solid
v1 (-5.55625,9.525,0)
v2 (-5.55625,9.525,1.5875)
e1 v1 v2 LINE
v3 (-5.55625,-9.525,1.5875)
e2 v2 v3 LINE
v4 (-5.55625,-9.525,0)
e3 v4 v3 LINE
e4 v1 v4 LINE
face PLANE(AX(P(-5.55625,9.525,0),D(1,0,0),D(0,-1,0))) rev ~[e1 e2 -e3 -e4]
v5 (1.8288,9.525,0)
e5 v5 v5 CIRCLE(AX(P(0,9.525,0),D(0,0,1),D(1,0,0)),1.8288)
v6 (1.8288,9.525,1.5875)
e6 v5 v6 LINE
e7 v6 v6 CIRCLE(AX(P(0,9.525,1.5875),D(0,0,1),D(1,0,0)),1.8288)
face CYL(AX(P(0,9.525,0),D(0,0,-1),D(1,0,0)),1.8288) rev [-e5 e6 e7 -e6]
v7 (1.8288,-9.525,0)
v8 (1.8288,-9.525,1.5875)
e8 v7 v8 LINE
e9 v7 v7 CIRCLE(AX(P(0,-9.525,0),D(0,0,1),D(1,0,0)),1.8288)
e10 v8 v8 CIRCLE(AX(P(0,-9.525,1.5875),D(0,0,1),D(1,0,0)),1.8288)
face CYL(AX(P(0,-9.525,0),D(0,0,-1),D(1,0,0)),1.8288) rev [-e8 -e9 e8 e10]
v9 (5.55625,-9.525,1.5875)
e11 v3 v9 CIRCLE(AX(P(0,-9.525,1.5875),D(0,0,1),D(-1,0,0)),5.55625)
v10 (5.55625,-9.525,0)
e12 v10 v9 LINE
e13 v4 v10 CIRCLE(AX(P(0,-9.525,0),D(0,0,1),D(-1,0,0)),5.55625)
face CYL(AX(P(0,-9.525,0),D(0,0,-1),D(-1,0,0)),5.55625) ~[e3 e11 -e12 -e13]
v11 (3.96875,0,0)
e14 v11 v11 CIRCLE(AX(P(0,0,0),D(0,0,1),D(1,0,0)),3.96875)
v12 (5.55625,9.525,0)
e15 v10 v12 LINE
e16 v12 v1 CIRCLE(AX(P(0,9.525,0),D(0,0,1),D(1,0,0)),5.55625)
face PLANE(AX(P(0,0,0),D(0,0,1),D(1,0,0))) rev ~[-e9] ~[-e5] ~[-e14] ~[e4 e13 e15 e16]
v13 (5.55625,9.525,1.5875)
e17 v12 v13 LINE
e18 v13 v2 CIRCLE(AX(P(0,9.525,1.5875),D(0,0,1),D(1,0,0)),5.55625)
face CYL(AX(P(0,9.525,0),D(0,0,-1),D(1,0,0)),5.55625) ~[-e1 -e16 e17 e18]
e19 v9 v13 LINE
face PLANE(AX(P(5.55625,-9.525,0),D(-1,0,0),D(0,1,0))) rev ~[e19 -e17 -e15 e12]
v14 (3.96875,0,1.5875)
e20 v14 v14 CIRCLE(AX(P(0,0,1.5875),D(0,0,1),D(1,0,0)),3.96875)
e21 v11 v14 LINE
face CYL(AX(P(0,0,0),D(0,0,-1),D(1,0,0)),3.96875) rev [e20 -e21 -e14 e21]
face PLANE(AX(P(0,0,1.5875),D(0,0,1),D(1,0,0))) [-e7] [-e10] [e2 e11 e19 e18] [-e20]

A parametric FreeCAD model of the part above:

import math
import FreeCAD as App
import Part
import Sketcher
from FreeCAD import Vector
Q = App.Units.Quantity

doc = App.newDocument("Part")
body = doc.addObject("PartDesign::Body", "Body")

# Sketch on XY plane
sketch1 = body.newObject("Sketcher::SketchObject", "Sketch")
sketch1.AttachmentSupport = (doc.getObject("XY_Plane"), [""])
sketch1.MapMode = "FlatFace"
sketch1.addGeometry(Part.LineSegment(Vector(5.55625, -9.525, 0), Vector(5.55625, 9.525, 0)), False)
sketch1.addGeometry(Part.ArcOfCircle(Part.Circle(Vector(0, 9.525, 0), Vector(0, 0, 1), 5.55625), math.radians(0), math.radians(180)), False)
sketch1.addGeometry(Part.LineSegment(Vector(-5.55625, 9.525, 0), Vector(-5.55625, -9.525, 0)), False)
sketch1.addGeometry(Part.ArcOfCircle(Part.Circle(Vector(0, -9.525, 0), Vector(0, 0, 1), 5.55625), math.radians(180), math.radians(360)), False)
sketch1.addGeometry(Part.Circle(Vector(0, -9.525, 0), Vector(0, 0, 1), 1.8288), False)
sketch1.addGeometry(Part.Circle(Vector(0, 0, 0), Vector(0, 0, 1), 3.96875), False)
sketch1.addGeometry(Part.Circle(Vector(0, 9.525, 0), Vector(0, 0, 1), 1.8288), False)
sketch1.addConstraint(Sketcher.Constraint("Tangent", 0, 2, 1, 1))
sketch1.addConstraint(Sketcher.Constraint("Tangent", 1, 2, 2, 1))
sketch1.addConstraint(Sketcher.Constraint("Tangent", 2, 2, 3, 1))
sketch1.addConstraint(Sketcher.Constraint("Tangent", 3, 2, 0, 1))
sketch1.addConstraint(Sketcher.Constraint("Vertical", 0))
sketch1.addConstraint(Sketcher.Constraint("Vertical", 2))
sketch1.addConstraint(Sketcher.Constraint("Coincident", 5, 3, -1, 1))
sketch1.addConstraint(Sketcher.Constraint("Coincident", 4, 3, 3, 3))
sketch1.addConstraint(Sketcher.Constraint("Coincident", 6, 3, 1, 3))
sketch1.addConstraint(Sketcher.Constraint("Equal", 4, 6))
sketch1.addConstraint(Sketcher.Constraint("Symmetric", 1, 3, 3, 3, -1, 1))
sketch1.addConstraint(Sketcher.Constraint("Diameter", 4, Q("0.144 in")))
sketch1.addConstraint(Sketcher.Constraint("Diameter", 5, Q("0.3125 in")))
sketch1.addConstraint(Sketcher.Constraint("Radius", 1, Q("0.21875 in")))
sketch1.addConstraint(Sketcher.Constraint("DistanceY", 0, 1, 0, 2, Q("0.75 in")))
pad1 = body.newObject("PartDesign::Pad", "Pad")
pad1.Profile = sketch1
pad1.Length = Q("0.0625 in")

doc.recompute()
